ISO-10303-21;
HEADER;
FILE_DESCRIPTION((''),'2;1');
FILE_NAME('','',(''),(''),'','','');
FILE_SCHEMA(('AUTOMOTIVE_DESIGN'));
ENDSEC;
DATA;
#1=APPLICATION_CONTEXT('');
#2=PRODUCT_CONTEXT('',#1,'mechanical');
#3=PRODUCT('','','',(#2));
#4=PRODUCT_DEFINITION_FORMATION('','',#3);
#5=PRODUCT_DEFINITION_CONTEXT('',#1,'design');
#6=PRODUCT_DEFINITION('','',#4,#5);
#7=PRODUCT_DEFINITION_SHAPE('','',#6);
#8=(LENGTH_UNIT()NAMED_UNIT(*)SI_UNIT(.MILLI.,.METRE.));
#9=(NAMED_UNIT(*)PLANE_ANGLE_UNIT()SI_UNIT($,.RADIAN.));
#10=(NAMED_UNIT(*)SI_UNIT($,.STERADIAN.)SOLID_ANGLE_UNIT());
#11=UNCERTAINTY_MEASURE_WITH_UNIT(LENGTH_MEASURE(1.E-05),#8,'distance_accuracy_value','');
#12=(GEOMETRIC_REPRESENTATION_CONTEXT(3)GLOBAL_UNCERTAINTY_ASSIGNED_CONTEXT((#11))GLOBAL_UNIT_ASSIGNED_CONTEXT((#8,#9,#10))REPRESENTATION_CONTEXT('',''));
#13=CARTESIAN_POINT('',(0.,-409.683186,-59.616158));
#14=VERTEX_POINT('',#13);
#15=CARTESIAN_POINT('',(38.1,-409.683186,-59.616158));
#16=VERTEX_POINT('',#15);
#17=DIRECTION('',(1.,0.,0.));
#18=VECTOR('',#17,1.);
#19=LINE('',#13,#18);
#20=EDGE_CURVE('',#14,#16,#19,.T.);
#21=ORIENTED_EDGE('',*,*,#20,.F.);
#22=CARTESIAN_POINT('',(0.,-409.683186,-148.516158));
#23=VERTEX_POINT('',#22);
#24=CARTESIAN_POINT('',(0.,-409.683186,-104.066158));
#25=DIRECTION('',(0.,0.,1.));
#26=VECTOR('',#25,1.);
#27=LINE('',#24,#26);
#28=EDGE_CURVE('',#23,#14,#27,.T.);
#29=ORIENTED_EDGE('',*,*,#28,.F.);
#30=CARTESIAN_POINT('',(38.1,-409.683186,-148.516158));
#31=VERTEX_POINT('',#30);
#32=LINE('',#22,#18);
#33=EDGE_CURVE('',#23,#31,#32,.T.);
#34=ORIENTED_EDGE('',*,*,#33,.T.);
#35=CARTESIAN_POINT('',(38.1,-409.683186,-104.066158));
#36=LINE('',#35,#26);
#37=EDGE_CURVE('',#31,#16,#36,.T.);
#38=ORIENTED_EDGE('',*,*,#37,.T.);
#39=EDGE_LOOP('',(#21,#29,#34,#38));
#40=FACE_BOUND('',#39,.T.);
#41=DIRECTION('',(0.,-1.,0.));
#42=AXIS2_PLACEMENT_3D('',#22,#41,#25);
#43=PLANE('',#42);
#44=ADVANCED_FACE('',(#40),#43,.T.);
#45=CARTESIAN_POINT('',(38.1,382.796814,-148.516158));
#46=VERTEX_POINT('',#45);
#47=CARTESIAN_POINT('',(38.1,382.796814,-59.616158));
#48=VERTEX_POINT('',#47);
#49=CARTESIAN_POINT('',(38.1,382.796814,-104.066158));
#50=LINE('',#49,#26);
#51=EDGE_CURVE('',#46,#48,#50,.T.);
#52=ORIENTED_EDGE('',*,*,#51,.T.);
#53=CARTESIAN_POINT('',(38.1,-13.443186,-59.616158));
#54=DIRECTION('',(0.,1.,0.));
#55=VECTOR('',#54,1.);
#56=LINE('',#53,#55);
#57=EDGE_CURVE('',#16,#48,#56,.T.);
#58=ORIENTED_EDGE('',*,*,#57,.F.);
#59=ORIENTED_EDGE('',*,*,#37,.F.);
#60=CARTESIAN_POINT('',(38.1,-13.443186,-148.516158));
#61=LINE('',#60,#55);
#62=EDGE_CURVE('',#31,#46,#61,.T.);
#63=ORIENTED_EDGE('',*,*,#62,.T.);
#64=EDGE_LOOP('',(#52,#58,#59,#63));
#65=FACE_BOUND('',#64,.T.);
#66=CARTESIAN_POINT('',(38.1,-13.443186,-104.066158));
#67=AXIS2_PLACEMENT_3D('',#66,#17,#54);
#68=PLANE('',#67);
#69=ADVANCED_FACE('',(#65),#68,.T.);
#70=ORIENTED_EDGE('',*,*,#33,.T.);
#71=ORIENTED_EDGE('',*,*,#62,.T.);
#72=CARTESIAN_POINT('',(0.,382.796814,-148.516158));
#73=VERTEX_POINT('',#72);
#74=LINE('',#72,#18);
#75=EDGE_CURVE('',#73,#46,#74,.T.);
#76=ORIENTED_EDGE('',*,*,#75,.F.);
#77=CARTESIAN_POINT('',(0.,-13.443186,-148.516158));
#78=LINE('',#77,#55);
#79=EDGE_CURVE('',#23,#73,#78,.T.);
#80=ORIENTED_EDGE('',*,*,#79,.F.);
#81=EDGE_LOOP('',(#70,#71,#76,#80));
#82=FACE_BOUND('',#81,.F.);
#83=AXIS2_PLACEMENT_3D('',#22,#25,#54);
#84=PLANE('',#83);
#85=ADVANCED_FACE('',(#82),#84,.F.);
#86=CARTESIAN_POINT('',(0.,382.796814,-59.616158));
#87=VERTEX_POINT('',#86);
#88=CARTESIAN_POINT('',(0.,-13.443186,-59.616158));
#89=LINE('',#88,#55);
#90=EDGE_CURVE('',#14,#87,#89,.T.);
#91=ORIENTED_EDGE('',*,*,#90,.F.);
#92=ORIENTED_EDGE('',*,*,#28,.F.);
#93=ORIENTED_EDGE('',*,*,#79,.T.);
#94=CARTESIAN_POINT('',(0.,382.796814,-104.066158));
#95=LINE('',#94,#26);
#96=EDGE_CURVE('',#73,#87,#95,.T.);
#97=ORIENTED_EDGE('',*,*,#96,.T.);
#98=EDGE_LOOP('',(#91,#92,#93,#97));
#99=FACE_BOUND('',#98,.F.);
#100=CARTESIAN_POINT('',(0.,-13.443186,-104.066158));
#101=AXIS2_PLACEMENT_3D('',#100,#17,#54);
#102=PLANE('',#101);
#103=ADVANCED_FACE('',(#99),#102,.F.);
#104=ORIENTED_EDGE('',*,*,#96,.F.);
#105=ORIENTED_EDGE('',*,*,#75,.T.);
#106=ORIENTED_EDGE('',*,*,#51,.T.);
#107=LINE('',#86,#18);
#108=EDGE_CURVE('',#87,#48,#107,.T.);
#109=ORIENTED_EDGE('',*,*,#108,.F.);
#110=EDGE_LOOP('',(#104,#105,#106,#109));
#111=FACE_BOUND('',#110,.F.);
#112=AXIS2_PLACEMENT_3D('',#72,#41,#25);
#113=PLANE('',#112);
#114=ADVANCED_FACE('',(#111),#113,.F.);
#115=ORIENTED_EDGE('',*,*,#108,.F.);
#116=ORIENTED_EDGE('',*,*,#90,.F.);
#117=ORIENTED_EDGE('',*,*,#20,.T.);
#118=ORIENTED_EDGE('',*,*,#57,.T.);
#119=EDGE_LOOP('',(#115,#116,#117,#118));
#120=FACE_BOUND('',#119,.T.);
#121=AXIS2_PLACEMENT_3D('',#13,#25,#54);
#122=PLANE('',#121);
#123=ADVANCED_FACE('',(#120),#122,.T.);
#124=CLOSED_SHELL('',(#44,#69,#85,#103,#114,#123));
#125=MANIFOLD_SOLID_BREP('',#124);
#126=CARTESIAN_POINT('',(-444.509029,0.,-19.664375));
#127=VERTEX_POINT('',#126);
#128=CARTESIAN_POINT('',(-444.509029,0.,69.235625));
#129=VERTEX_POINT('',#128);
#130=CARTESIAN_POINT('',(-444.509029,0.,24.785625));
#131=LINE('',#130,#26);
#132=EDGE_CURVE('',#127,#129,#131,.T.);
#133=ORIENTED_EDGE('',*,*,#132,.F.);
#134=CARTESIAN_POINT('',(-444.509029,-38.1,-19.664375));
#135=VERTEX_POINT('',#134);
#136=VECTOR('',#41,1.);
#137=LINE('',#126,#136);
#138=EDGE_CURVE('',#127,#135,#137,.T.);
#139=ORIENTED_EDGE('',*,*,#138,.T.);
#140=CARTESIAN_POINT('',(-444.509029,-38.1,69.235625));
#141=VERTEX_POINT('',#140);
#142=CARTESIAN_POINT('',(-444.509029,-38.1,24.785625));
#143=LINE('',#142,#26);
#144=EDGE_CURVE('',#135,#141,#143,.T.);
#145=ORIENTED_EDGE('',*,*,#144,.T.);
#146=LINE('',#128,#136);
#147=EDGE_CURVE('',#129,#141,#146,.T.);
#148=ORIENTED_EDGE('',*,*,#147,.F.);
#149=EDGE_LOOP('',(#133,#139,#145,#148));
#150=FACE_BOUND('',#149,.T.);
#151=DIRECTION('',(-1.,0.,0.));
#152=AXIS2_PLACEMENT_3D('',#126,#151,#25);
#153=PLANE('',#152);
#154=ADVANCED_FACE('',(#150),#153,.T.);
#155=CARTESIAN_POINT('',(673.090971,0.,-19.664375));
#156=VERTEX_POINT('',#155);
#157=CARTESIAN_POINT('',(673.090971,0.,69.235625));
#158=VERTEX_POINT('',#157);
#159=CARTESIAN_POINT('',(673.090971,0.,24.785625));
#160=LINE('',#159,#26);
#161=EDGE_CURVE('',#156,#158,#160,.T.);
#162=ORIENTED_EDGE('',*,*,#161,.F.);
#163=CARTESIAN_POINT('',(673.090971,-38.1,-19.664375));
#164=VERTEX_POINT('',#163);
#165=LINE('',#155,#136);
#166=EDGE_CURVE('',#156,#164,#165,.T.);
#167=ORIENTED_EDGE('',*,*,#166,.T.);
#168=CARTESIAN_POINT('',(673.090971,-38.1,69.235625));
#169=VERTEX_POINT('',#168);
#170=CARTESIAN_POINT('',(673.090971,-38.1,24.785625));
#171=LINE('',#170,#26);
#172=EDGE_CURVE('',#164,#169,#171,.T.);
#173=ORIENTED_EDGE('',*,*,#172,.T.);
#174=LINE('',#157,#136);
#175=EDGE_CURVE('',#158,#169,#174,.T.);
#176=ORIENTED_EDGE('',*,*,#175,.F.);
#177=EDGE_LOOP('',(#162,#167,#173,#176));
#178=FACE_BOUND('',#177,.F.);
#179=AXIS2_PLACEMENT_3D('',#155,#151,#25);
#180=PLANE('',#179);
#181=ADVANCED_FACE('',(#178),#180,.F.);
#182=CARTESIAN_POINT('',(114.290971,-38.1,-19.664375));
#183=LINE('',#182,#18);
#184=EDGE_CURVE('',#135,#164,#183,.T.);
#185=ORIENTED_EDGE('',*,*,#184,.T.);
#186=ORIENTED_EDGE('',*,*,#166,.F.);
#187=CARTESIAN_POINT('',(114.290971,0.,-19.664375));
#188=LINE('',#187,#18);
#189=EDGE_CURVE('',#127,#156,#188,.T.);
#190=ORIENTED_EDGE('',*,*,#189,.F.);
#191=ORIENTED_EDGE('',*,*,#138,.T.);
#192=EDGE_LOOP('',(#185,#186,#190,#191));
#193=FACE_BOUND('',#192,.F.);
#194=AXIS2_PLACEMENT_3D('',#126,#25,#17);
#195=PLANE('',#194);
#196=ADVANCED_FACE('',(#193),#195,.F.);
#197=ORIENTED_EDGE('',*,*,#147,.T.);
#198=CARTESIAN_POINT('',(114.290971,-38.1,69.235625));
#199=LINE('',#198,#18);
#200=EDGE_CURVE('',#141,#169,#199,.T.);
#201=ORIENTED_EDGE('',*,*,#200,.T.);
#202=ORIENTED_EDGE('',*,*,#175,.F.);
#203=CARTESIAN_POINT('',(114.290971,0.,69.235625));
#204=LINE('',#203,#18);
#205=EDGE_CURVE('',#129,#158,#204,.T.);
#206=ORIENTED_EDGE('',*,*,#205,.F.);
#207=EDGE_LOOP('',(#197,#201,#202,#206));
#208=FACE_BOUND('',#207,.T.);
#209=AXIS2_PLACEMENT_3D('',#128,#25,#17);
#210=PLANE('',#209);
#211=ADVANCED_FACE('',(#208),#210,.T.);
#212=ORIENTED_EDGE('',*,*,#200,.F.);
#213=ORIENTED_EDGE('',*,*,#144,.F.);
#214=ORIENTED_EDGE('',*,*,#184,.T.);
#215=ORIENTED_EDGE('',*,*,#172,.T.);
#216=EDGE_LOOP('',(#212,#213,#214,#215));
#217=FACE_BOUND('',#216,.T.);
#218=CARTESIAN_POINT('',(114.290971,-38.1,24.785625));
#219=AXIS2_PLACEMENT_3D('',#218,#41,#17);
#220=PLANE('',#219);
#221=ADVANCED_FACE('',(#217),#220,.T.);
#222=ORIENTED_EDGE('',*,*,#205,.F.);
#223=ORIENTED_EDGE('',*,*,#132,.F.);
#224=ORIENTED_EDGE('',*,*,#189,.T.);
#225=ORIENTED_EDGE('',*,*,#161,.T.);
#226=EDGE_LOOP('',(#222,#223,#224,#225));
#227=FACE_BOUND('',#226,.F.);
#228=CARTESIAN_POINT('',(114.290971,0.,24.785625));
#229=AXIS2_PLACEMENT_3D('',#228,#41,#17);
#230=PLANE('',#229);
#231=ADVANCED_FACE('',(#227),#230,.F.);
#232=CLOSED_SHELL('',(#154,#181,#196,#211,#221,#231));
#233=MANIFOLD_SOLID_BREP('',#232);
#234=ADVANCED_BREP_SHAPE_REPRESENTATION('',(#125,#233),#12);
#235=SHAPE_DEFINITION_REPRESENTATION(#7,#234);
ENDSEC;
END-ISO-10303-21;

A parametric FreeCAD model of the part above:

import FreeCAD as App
import Part
import Sketcher

V = App.Vector
Q = App.Units.Quantity

doc = App.newDocument("Part")
body = doc.addObject("PartDesign::Body", "Body")

sketch1 = doc.addObject("Sketcher::SketchObject", "Sketch")
body.addObject(sketch1)
sketch1.AttachmentSupport = (doc.XZ_Plane, [""])
sketch1.MapMode = "FlatFace"
sketch1.addGeometry([
    Part.LineSegment(V(-445, 69, 0), V(-445, -20, 0)),
    Part.LineSegment(V(-445, -20, 0), V(673, -20, 0)),
    Part.LineSegment(V(673, -20, 0), V(673, 69, 0)),
    Part.LineSegment(V(673, 69, 0), V(-445, 69, 0)),
], False)
sketch1.addConstraint([
    Sketcher.Constraint("Coincident", 0, 2, 1, 1),
    Sketcher.Constraint("Coincident", 1, 2, 2, 1),
    Sketcher.Constraint("Coincident", 2, 2, 3, 1),
    Sketcher.Constraint("Coincident", 3, 2, 0, 1),
    Sketcher.Constraint("Vertical", 0),
    Sketcher.Constraint("Horizontal", 1),
    Sketcher.Constraint("Vertical", 2),
    Sketcher.Constraint("Horizontal", 3),
    Sketcher.Constraint("DistanceX", 1, 1, 1, 2, Q("44 in")),
    Sketcher.Constraint("DistanceY", 0, 2, 0, 1, Q("3.5 in")),
    Sketcher.Constraint("DistanceX", 0, 2, -1, 1, 444.509029),
    Sketcher.Constraint("DistanceY", 0, 2, -1, 1, 19.664375),
])
pad1 = doc.addObject("PartDesign::Pad", "Pad")
body.addObject(pad1)
pad1.Profile = sketch1
pad1.Length = Q("1.5 in")
body2 = doc.addObject("PartDesign::Body", "Body001")

sketch2 = doc.addObject("Sketcher::SketchObject", "Sketch001")
body2.addObject(sketch2)
sketch2.AttachmentSupport = (doc.getObject("YZ_Plane001"), [""])
sketch2.MapMode = "FlatFace"
sketch2.addGeometry([
    Part.LineSegment(V(-410, -60, 0), V(-410, -149, 0)),
    Part.LineSegment(V(-410, -149, 0), V(383, -149, 0)),
    Part.LineSegment(V(383, -149, 0), V(383, -60, 0)),
    Part.LineSegment(V(383, -60, 0), V(-410, -60, 0)),
], False)
sketch2.addConstraint([
    Sketcher.Constraint("Coincident", 0, 2, 1, 1),
    Sketcher.Constraint("Coincident", 1, 2, 2, 1),
    Sketcher.Constraint("Coincident", 2, 2, 3, 1),
    Sketcher.Constraint("Coincident", 3, 2, 0, 1),
    Sketcher.Constraint("Vertical", 0),
    Sketcher.Constraint("Horizontal", 1),
    Sketcher.Constraint("Vertical", 2),
    Sketcher.Constraint("Horizontal", 3),
    Sketcher.Constraint("DistanceX", 1, 1, 1, 2, Q("31.2 in")),
    Sketcher.Constraint("DistanceY", 0, 2, 0, 1, Q("3.5 in")),
    Sketcher.Constraint("DistanceX", 0, 2, -1, 1, 409.683186),
    Sketcher.Constraint("DistanceY", 0, 2, -1, 1, 148.516158),
])
pad2 = doc.addObject("PartDesign::Pad", "Pad001")
body2.addObject(pad2)
pad2.Profile = sketch2
pad2.Length = Q("1.5 in")

doc.recompute()
